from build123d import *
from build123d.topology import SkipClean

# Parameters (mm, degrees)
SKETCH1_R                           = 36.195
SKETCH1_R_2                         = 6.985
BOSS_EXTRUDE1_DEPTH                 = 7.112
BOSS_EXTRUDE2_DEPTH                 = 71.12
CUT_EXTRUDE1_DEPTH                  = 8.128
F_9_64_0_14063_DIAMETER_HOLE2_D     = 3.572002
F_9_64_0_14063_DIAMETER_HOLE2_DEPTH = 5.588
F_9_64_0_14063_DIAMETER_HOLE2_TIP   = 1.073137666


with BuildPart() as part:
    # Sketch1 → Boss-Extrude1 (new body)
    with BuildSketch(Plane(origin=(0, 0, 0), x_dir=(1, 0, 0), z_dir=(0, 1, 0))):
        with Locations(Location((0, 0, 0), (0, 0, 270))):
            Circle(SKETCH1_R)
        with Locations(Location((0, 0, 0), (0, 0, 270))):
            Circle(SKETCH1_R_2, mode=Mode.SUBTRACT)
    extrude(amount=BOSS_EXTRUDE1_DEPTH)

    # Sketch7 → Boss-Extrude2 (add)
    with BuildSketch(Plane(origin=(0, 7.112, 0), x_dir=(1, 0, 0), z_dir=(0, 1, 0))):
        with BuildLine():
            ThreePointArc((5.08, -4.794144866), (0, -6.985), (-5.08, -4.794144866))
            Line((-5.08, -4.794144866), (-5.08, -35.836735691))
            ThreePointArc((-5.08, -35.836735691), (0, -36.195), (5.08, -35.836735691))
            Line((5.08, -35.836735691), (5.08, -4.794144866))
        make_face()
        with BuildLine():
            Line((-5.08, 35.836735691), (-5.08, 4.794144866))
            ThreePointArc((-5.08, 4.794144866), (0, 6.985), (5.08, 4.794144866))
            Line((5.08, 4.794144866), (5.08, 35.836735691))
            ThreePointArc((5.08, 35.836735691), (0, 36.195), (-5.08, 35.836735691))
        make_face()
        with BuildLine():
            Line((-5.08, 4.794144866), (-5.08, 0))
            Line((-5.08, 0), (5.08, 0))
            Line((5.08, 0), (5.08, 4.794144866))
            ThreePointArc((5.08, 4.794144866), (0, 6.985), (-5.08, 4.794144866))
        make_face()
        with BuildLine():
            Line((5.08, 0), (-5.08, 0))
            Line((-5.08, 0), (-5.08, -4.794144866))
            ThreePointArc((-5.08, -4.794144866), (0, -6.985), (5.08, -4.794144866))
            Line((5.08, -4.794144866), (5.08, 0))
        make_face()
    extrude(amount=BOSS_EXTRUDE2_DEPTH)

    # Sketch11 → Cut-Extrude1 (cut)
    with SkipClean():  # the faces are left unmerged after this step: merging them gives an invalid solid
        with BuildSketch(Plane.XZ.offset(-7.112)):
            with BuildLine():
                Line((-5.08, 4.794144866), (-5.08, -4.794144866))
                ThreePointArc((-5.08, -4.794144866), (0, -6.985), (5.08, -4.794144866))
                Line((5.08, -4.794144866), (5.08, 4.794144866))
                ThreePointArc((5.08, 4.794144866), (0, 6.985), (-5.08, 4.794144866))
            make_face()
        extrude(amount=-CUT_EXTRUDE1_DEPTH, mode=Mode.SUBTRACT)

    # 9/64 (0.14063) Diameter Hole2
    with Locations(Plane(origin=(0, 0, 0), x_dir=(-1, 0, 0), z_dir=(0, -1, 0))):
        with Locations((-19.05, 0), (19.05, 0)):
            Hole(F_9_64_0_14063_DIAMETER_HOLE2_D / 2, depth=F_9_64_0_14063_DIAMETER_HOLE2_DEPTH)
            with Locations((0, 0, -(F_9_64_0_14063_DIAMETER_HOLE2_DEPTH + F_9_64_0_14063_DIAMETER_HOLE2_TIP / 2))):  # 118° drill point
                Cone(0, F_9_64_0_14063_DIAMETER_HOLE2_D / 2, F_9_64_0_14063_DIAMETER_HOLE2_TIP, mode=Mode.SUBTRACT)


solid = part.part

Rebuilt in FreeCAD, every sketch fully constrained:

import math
import FreeCAD as App
import Part
import Sketcher
Q = App.Units.Quantity

doc = App.newDocument("Part")
params = doc.addObject("Spreadsheet::Sheet", "Params")
for row, (alias, value) in enumerate([
    ("sketch1_diameter", "2.85 in"),
    ("sketch1_diameter2", "0.55 in"),
    ("pad1_length", "0.28 in"),
    ("sketch2_radius", "1.425 in"),
    ("pad2_length", "2.8 in"),
    ("sketch3_radius", "0.275 in"),
    ("pocket1_length", "0.32 in"),
    ("hole_diameter", "3.572002 mm"),
    ("hole_depth", "0.22 in"),
], start=1):
    params.set(f"A{row}", alias)
    params.set(f"B{row}", "=" + value)
    params.setAlias(f"B{row}", alias)

body = doc.addObject("PartDesign::Body", "Body")

# Sketch on XZ plane
sketch1 = body.newObject("Sketcher::SketchObject", "Sketch")
sketch1.AttachmentSupport = (doc.getObject("XZ_Plane"), [""])
sketch1.MapMode = "FlatFace"
sketch1.addGeometry(Part.Circle(App.Vector(0, 0, 0), App.Vector(0, 0, 1), 36), False)
sketch1.addGeometry(Part.Circle(App.Vector(0, 0, 0), App.Vector(0, 0, 1), 7), False)
sketch1.addConstraint(Sketcher.Constraint("Coincident", 0, 3, -1, 1))
sketch1.addConstraint(Sketcher.Constraint("Coincident", 1, 3, -1, 1))
sketch1.addConstraint(Sketcher.Constraint("Diameter", 0, Q("2.85 in")))
sketch1.addConstraint(Sketcher.Constraint("Diameter", 1, Q("0.55 in")))
sketch1.setExpression("Constraints[2]", "Params.sketch1_diameter")
sketch1.setExpression("Constraints[3]", "Params.sketch1_diameter2")
pad1 = body.newObject("PartDesign::Pad", "Pad")
pad1.Profile = sketch1
pad1.setExpression("Length", "Params.pad1_length")
pad1.Reversed = True

# Sketch on XZ plane
sketch2 = body.newObject("Sketcher::SketchObject", "Sketch001")
sketch2.AttachmentSupport = (doc.getObject("XZ_Plane"), [""])
sketch2.MapMode = "FlatFace"
sketch2.AttachmentOffset = App.Placement(App.Vector(0, 0, -0.28 * 25.4), App.Rotation())
sketch2.addGeometry(Part.ArcOfCircle(Part.Circle(App.Vector(0, 0, 0), App.Vector(0, 0, 1), 36), math.radians(81.93), math.radians(98.07)), False)
sketch2.addGeometry(Part.LineSegment(App.Vector(5, 36, 0), App.Vector(5, -36, 0)), False)
sketch2.addGeometry(Part.ArcOfCircle(Part.Circle(App.Vector(0, 0, 0), App.Vector(0, 0, 1), 36), math.radians(-98.07), math.radians(-81.93)), False)
sketch2.addGeometry(Part.LineSegment(App.Vector(-5, -36, 0), App.Vector(-5, 36, 0)), False)
sketch2.addConstraint(Sketcher.Constraint("Coincident", 0, 1, 1, 1))
sketch2.addConstraint(Sketcher.Constraint("Coincident", 1, 2, 2, 2))
sketch2.addConstraint(Sketcher.Constraint("Coincident", 2, 1, 3, 1))
sketch2.addConstraint(Sketcher.Constraint("Coincident", 3, 2, 0, 2))
sketch2.addConstraint(Sketcher.Constraint("Vertical", 1))
sketch2.addConstraint(Sketcher.Constraint("Vertical", 3))
sketch2.addConstraint(Sketcher.Constraint("Coincident", 0, 3, -1, 1))
sketch2.addConstraint(Sketcher.Constraint("Coincident", 2, 3, -1, 1))
sketch2.addConstraint(Sketcher.Constraint("Equal", 0, 2))
sketch2.addConstraint(Sketcher.Constraint("Horizontal", 1, 2, 2, 1))
sketch2.addConstraint(Sketcher.Constraint("Radius", 0, Q("1.425 in")))
sketch2.addConstraint(Sketcher.Constraint("DistanceX", -1, 1, 0, 1, Q("0.2 in")))
sketch2.setExpression("Constraints[10]", "Params.sketch2_radius")
pad2 = body.newObject("PartDesign::Pad", "Pad001")
pad2.Profile = sketch2
pad2.setExpression("Length", "Params.pad2_length")
pad2.Reversed = True

# Sketch on XZ plane
sketch3 = body.newObject("Sketcher::SketchObject", "Sketch002")
sketch3.AttachmentSupport = (doc.getObject("XZ_Plane"), [""])
sketch3.MapMode = "FlatFace"
sketch3.AttachmentOffset = App.Placement(App.Vector(0, 0, -0.28 * 25.4), App.Rotation())
sketch3.addGeometry(Part.LineSegment(App.Vector(-5, 5, 0), App.Vector(-5, -5, 0)), False)
sketch3.addGeometry(Part.ArcOfCircle(Part.Circle(App.Vector(0, 0, 0), App.Vector(0, 0, 1), 7), math.radians(-137), math.radians(-43)), False)
sketch3.addGeometry(Part.LineSegment(App.Vector(5, -5, 0), App.Vector(5, 5, 0)), False)
sketch3.addGeometry(Part.ArcOfCircle(Part.Circle(App.Vector(0, 0, 0), App.Vector(0, 0, 1), 7), math.radians(43), math.radians(137)), False)
sketch3.addConstraint(Sketcher.Constraint("Coincident", 0, 2, 1, 1))
sketch3.addConstraint(Sketcher.Constraint("Coincident", 1, 2, 2, 1))
sketch3.addConstraint(Sketcher.Constraint("Coincident", 2, 2, 3, 1))
sketch3.addConstraint(Sketcher.Constraint("Coincident", 3, 2, 0, 1))
sketch3.addConstraint(Sketcher.Constraint("Vertical", 0))
sketch3.addConstraint(Sketcher.Constraint("Vertical", 2))
sketch3.addConstraint(Sketcher.Constraint("Coincident", 1, 3, -1, 1))
sketch3.addConstraint(Sketcher.Constraint("Coincident", 3, 3, -1, 1))
sketch3.addConstraint(Sketcher.Constraint("Equal", 1, 3))
sketch3.addConstraint(Sketcher.Constraint("Horizontal", 0, 2, 1, 2))
sketch3.addConstraint(Sketcher.Constraint("Radius", 1, Q("0.275 in")))
sketch3.addConstraint(Sketcher.Constraint("DistanceX", 0, 2, -1, 1, Q("0.2 in")))
sketch3.setExpression("Constraints[10]", "Params.sketch3_radius")
pocket1 = body.newObject("PartDesign::Pocket", "Pocket")
pocket1.Profile = sketch3
pocket1.setExpression("Length", "Params.pocket1_length")

# Sketch on XZ plane
sketch4 = body.newObject("Sketcher::SketchObject", "Sketch003")
sketch4.AttachmentSupport = (doc.getObject("XZ_Plane"), [""])
sketch4.MapMode = "FlatFace"
sketch4.addGeometry(Part.Circle(App.Vector(19.1, 0, 0), App.Vector(0, 0, 1), 1.8), False)
sketch4.addGeometry(Part.Circle(App.Vector(-19.1, 0, 0), App.Vector(0, 0, 1), 1.8), False)
sketch4.addConstraint(Sketcher.Constraint("Equal", 0, 1))
sketch4.addConstraint(Sketcher.Constraint("Symmetric", 0, 3, 1, 3, -1, 1))
sketch4.addConstraint(Sketcher.Constraint("PointOnObject", 0, 3, -1))
sketch4.addConstraint(Sketcher.Constraint("DistanceX", 1, 3, 0, 3, Q("1.5 in")))
sketch4.addConstraint(Sketcher.Constraint("Diameter", 0, Q("3.572002 mm")))
doc.recompute()
hole = body.newObject("PartDesign::Hole", "Hole")
hole.Profile = sketch4
hole.ThreadType = "None"
hole.setExpression("Diameter", "Params.hole_diameter")
hole.DepthType = "Dimension"
hole.setExpression("Depth", "Params.hole_depth")
hole.DrillPoint = "Angled"
hole.DrillPointAngle = 118

doc.recompute()
